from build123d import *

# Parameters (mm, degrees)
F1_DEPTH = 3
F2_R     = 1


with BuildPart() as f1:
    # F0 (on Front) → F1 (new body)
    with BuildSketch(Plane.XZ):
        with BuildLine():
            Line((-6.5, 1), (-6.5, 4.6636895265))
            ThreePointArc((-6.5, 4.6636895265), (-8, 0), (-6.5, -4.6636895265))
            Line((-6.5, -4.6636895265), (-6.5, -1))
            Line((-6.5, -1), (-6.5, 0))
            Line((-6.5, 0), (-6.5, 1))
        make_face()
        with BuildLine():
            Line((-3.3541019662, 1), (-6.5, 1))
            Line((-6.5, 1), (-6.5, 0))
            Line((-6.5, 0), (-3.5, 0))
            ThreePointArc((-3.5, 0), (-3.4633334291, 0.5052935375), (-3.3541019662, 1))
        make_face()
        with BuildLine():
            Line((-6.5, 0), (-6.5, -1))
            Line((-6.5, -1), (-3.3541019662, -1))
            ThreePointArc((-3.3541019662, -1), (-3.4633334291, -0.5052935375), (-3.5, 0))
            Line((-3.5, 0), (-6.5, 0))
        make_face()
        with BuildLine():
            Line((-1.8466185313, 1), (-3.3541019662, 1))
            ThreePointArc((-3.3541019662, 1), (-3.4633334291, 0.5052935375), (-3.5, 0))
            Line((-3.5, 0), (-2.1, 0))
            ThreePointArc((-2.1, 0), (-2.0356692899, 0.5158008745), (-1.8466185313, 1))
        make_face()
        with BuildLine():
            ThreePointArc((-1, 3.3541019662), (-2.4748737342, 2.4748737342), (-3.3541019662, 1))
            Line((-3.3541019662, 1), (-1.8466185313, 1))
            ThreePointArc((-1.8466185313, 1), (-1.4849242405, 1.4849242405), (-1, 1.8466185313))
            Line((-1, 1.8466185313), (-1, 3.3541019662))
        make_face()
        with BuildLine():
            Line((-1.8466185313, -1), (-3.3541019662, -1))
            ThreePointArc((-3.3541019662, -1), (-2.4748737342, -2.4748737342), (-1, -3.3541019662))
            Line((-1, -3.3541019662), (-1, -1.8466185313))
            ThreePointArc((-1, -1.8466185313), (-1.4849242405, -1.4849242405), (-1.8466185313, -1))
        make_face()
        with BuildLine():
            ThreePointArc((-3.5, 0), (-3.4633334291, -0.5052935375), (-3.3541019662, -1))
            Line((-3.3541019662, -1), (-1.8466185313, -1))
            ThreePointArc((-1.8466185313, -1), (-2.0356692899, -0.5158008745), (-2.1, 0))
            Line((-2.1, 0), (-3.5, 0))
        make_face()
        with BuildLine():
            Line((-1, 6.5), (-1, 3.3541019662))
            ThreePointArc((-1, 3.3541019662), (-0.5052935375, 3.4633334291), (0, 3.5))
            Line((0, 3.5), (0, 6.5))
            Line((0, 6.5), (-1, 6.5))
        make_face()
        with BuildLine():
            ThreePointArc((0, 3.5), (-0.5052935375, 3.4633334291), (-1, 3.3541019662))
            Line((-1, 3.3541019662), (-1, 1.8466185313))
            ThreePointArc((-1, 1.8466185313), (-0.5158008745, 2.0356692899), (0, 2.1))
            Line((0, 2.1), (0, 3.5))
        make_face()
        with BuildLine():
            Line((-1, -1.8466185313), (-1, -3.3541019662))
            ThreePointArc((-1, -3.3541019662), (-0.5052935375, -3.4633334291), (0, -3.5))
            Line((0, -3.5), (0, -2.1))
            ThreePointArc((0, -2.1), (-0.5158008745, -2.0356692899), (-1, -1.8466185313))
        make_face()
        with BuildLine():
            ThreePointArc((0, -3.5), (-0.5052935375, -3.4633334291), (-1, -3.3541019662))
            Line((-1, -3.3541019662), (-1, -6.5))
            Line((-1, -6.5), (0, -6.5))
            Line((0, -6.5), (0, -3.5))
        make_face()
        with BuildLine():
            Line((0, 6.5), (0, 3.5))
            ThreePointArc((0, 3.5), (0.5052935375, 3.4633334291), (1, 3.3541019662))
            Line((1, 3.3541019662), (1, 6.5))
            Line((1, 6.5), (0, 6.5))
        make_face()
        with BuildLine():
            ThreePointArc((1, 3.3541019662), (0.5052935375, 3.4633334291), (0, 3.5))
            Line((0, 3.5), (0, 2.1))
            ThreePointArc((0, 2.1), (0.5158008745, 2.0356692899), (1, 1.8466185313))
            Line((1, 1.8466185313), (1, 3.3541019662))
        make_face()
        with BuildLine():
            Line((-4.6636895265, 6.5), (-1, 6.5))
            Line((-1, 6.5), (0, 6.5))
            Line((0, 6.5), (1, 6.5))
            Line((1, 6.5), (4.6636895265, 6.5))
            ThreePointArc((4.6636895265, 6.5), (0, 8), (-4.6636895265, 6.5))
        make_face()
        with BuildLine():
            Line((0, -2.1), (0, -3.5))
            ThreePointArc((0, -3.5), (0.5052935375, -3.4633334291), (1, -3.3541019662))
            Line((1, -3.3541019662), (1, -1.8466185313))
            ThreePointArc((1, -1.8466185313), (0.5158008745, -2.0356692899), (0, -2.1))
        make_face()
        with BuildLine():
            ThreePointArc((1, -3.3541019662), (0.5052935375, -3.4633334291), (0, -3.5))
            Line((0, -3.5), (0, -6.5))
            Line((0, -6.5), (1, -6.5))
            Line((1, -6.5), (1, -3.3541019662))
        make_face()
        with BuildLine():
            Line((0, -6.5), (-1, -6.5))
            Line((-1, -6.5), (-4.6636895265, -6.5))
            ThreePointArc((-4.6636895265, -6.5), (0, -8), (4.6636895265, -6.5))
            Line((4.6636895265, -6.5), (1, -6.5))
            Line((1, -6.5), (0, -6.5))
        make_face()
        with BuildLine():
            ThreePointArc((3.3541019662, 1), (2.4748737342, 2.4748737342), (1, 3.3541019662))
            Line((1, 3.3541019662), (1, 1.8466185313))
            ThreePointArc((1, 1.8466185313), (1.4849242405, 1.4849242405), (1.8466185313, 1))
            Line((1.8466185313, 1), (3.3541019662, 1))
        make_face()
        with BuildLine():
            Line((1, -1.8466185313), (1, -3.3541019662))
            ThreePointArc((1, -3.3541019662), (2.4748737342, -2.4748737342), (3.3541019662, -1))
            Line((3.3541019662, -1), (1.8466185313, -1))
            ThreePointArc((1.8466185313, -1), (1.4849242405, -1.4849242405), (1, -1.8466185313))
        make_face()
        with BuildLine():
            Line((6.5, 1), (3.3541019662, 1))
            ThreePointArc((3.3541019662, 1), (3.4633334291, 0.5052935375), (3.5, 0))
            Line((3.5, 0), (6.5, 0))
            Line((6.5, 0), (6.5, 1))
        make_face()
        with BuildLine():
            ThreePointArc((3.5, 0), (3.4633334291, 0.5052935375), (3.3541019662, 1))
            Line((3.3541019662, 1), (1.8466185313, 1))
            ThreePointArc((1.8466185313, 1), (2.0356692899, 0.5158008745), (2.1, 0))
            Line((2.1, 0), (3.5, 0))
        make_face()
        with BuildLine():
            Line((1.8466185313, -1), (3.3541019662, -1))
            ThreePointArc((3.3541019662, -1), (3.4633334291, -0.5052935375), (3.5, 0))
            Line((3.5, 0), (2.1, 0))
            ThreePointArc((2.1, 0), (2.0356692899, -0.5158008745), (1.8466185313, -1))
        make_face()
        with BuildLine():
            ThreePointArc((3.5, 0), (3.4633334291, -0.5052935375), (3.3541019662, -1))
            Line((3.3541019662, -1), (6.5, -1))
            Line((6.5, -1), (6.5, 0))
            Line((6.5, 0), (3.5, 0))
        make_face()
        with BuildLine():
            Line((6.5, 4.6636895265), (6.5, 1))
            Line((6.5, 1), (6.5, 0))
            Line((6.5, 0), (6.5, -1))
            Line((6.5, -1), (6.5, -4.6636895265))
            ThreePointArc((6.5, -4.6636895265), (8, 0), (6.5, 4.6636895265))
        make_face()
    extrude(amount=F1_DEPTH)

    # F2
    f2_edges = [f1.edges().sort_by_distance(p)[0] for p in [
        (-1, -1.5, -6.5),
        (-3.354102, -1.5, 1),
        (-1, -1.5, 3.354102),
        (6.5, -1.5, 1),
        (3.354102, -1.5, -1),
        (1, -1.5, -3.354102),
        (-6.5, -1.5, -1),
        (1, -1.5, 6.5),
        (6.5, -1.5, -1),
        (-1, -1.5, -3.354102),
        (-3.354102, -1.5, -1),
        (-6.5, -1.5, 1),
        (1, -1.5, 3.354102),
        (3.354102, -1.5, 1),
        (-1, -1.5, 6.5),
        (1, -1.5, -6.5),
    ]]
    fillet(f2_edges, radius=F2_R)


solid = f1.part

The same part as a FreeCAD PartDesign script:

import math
import FreeCAD as App
import Part
import Sketcher
from FreeCAD import Vector


def edges_at(feature, points):
    """Names of the edges that pass closest to the given points."""
    edges = feature.Shape.Edges
    near = lambda p: min(range(len(edges)), key=lambda i: edges[i].distToShape(Part.Vertex(*p))[0])
    return sorted({f"Edge{near(p) + 1}" for p in points})

doc = App.newDocument("Part")
body = doc.addObject("PartDesign::Body", "Body")

sketch1 = doc.addObject("Sketcher::SketchObject", "Sketch")
body.addObject(sketch1)
sketch1.AttachmentSupport = (doc.XZ_Plane, [""])
sketch1.MapMode = "FlatFace"
sketch1.addGeometry([
    Part.ArcOfCircle(Part.Circle(Vector(0, 0, 0), Vector(0, 0, 1), 8), math.radians(144), math.radians(216)),
    Part.LineSegment(Vector(-6.5, -4.7, 0), Vector(-6.5, -1, 0)),
    Part.LineSegment(Vector(-6.5, -1, 0), Vector(-3.4, -1, 0)),
    Part.ArcOfCircle(Part.Circle(Vector(0, 0, 0), Vector(0, 0, 1), 3.5), math.radians(-163), math.radians(-107)),
    Part.LineSegment(Vector(-1, -3.4, 0), Vector(-1, -6.5, 0)),
    Part.LineSegment(Vector(-1, -6.5, 0), Vector(-4.7, -6.5, 0)),
    Part.ArcOfCircle(Part.Circle(Vector(0, 0, 0), Vector(0, 0, 1), 8), math.radians(-126), math.radians(-54)),
    Part.LineSegment(Vector(4.7, -6.5, 0), Vector(1, -6.5, 0)),
    Part.LineSegment(Vector(1, -6.5, 0), Vector(1, -3.4, 0)),
    Part.ArcOfCircle(Part.Circle(Vector(0, 0, 0), Vector(0, 0, 1), 3.5), math.radians(-73), math.radians(-17)),
    Part.LineSegment(Vector(3.4, -1, 0), Vector(6.5, -1, 0)),
    Part.LineSegment(Vector(6.5, -1, 0), Vector(6.5, -4.7, 0)),
    Part.ArcOfCircle(Part.Circle(Vector(0, 0, 0), Vector(0, 0, 1), 8), math.radians(-36), math.radians(36)),
    Part.LineSegment(Vector(6.5, 4.7, 0), Vector(6.5, 1, 0)),
    Part.LineSegment(Vector(6.5, 1, 0), Vector(3.4, 1, 0)),
    Part.ArcOfCircle(Part.Circle(Vector(0, 0, 0), Vector(0, 0, 1), 3.5), math.radians(17), math.radians(73)),
    Part.LineSegment(Vector(1, 3.4, 0), Vector(1, 6.5, 0)),
    Part.LineSegment(Vector(1, 6.5, 0), Vector(4.7, 6.5, 0)),
    Part.ArcOfCircle(Part.Circle(Vector(0, 0, 0), Vector(0, 0, 1), 8), math.radians(54), math.radians(126)),
    Part.LineSegment(Vector(-4.7, 6.5, 0), Vector(-1, 6.5, 0)),
    Part.LineSegment(Vector(-1, 6.5, 0), Vector(-1, 3.4, 0)),
    Part.ArcOfCircle(Part.Circle(Vector(0, 0, 0), Vector(0, 0, 1), 3.5), math.radians(107), math.radians(163)),
    Part.LineSegment(Vector(-3.4, 1, 0), Vector(-6.5, 1, 0)),
    Part.LineSegment(Vector(-6.5, 1, 0), Vector(-6.5, 4.7, 0)),
    Part.ArcOfCircle(Part.Circle(Vector(0, 0, 0), Vector(0, 0, 1), 2.1), math.radians(-62), math.radians(-28)),
    Part.ArcOfCircle(Part.Circle(Vector(0, 0, 0), Vector(0, 0, 1), 2.1), math.radians(-90), math.radians(-62)),
    Part.ArcOfCircle(Part.Circle(Vector(0, 0, 0), Vector(0, 0, 1), 2.1), math.radians(-118), math.radians(-90)),
    Part.ArcOfCircle(Part.Circle(Vector(0, 0, 0), Vector(0, 0, 1), 2.1), math.radians(-152), math.radians(-118)),
    Part.ArcOfCircle(Part.Circle(Vector(0, 0, 0), Vector(0, 0, 1), 2.1), math.radians(180), math.radians(208)),
    Part.ArcOfCircle(Part.Circle(Vector(0, 0, 0), Vector(0, 0, 1), 2.1), math.radians(152), math.radians(180)),
    Part.ArcOfCircle(Part.Circle(Vector(0, 0, 0), Vector(0, 0, 1), 2.1), math.radians(118), math.radians(152)),
    Part.ArcOfCircle(Part.Circle(Vector(0, 0, 0), Vector(0, 0, 1), 2.1), math.radians(90), math.radians(118)),
    Part.ArcOfCircle(Part.Circle(Vector(0, 0, 0), Vector(0, 0, 1), 2.1), math.radians(62), math.radians(90)),
    Part.ArcOfCircle(Part.Circle(Vector(0, 0, 0), Vector(0, 0, 1), 2.1), math.radians(28), math.radians(62)),
    Part.ArcOfCircle(Part.Circle(Vector(0, 0, 0), Vector(0, 0, 1), 2.1), math.radians(0), math.radians(28)),
    Part.ArcOfCircle(Part.Circle(Vector(0, 0, 0), Vector(0, 0, 1), 2.1), math.radians(-28), math.radians(0)),
], False)
sketch1.addConstraint([
    Sketcher.Constraint("Coincident", 0, 2, 1, 1),
    Sketcher.Constraint("Coincident", 1, 2, 2, 1),
    Sketcher.Constraint("Coincident", 2, 2, 3, 1),
    Sketcher.Constraint("Coincident", 3, 2, 4, 1),
    Sketcher.Constraint("Coincident", 4, 2, 5, 1),
    Sketcher.Constraint("Coincident", 5, 2, 6, 1),
    Sketcher.Constraint("Coincident", 6, 2, 7, 1),
    Sketcher.Constraint("Coincident", 7, 2, 8, 1),
    Sketcher.Constraint("Coincident", 8, 2, 9, 1),
    Sketcher.Constraint("Coincident", 9, 2, 10, 1),
    Sketcher.Constraint("Coincident", 10, 2, 11, 1),
    Sketcher.Constraint("Coincident", 11, 2, 12, 1),
    Sketcher.Constraint("Coincident", 12, 2, 13, 1),
    Sketcher.Constraint("Coincident", 13, 2, 14, 1),
    Sketcher.Constraint("Coincident", 14, 2, 15, 1),
    Sketcher.Constraint("Coincident", 15, 2, 16, 1),
    Sketcher.Constraint("Coincident", 16, 2, 17, 1),
    Sketcher.Constraint("Coincident", 17, 2, 18, 1),
    Sketcher.Constraint("Coincident", 18, 2, 19, 1),
    Sketcher.Constraint("Coincident", 19, 2, 20, 1),
    Sketcher.Constraint("Coincident", 20, 2, 21, 1),
    Sketcher.Constraint("Coincident", 21, 2, 22, 1),
    Sketcher.Constraint("Coincident", 22, 2, 23, 1),
    Sketcher.Constraint("Coincident", 23, 2, 0, 1),
    Sketcher.Constraint("Tangent", 24, 1, 25, 2),
    Sketcher.Constraint("Tangent", 25, 1, 26, 2),
    Sketcher.Constraint("Tangent", 26, 1, 27, 2),
    Sketcher.Constraint("Tangent", 27, 1, 28, 2),
    Sketcher.Constraint("Tangent", 28, 1, 29, 2),
    Sketcher.Constraint("Tangent", 29, 1, 30, 2),
    Sketcher.Constraint("Tangent", 30, 1, 31, 2),
    Sketcher.Constraint("Tangent", 31, 1, 32, 2),
    Sketcher.Constraint("Tangent", 32, 1, 33, 2),
    Sketcher.Constraint("Tangent", 33, 1, 34, 2),
    Sketcher.Constraint("Tangent", 34, 1, 35, 2),
    Sketcher.Constraint("Tangent", 35, 1, 24, 2),
    Sketcher.Constraint("Vertical", 1),
    Sketcher.Constraint("Horizontal", 2),
    Sketcher.Constraint("Vertical", 4),
    Sketcher.Constraint("Horizontal", 5),
    Sketcher.Constraint("Horizontal", 7),
    Sketcher.Constraint("Vertical", 8),
    Sketcher.Constraint("Horizontal", 10),
    Sketcher.Constraint("Vertical", 11),
    Sketcher.Constraint("Vertical", 13),
    Sketcher.Constraint("Horizontal", 14),
    Sketcher.Constraint("Vertical", 16),
    Sketcher.Constraint("Horizontal", 17),
    Sketcher.Constraint("Horizontal", 19),
    Sketcher.Constraint("Vertical", 20),
    Sketcher.Constraint("Horizontal", 22),
    Sketcher.Constraint("Vertical", 23),
    Sketcher.Constraint("Coincident", 0, 3, -1, 1),
    Sketcher.Constraint("Coincident", 3, 3, -1, 1),
    Sketcher.Constraint("Coincident", 6, 3, -1, 1),
    Sketcher.Constraint("Coincident", 9, 3, -1, 1),
    Sketcher.Constraint("Coincident", 12, 3, -1, 1),
    Sketcher.Constraint("Coincident", 15, 3, -1, 1),
    Sketcher.Constraint("Coincident", 18, 3, -1, 1),
    Sketcher.Constraint("Coincident", 21, 3, -1, 1),
    Sketcher.Constraint("Coincident", 24, 3, -1, 1),
    Sketcher.Constraint("Coincident", 26, 3, -1, 1),
    Sketcher.Constraint("Coincident", 28, 3, -1, 1),
    Sketcher.Constraint("Coincident", 30, 3, -1, 1),
    Sketcher.Constraint("Coincident", 32, 3, -1, 1),
    Sketcher.Constraint("Equal", 0, 6),
    Sketcher.Constraint("Equal", 3, 9),
    Sketcher.Constraint("Equal", 6, 12),
    Sketcher.Constraint("Equal", 9, 15),
    Sketcher.Constraint("Equal", 12, 18),
    Sketcher.Constraint("Equal", 15, 21),
    Sketcher.Constraint("Equal", 32, 33),
    Sketcher.Constraint("Symmetric", 1, 2, 13, 2, -1, 1),
    Sketcher.Constraint("Symmetric", 4, 2, 16, 2, -1, 1),
    Sketcher.Constraint("Symmetric", 7, 2, 19, 2, -1, 1),
    Sketcher.Constraint("Symmetric", 10, 2, 22, 2, -1, 1),
    Sketcher.Constraint("Symmetric", 4, 2, 7, 2, -2),
    Sketcher.Constraint("Symmetric", 1, 2, 10, 2, -2),
    Sketcher.Constraint("PointOnObject", 25, 1, -2),
    Sketcher.Constraint("PointOnObject", 28, 1, -1),
    Sketcher.Constraint("PointOnObject", 31, 1, -2),
    Sketcher.Constraint("PointOnObject", 34, 1, -1),
    Sketcher.Constraint("Horizontal", 24, 1, 26, 1),
    Sketcher.Constraint("Horizontal", 10, 2, 27, 1),
    Sketcher.Constraint("Horizontal", 22, 2, 29, 1),
    Sketcher.Constraint("Horizontal", 30, 1, 32, 1),
    Sketcher.Constraint("Horizontal", 29, 1, 33, 1),
    Sketcher.Constraint("Horizontal", 27, 1, 35, 1),
    Sketcher.Constraint("Vertical", 16, 2, 24, 1),
    Sketcher.Constraint("Vertical", 26, 1, 30, 1),
    Sketcher.Constraint("Equal", 19, 1),
    Sketcher.Constraint("Equal", 22, 4),
    Sketcher.Constraint("Radius", 0, 8.0),
    Sketcher.Constraint("Radius", 3, 3.5),
    Sketcher.Constraint("Radius", 24, 2.1),
    Sketcher.Constraint("DistanceY", 1, 2, -1, 1, 1.0),
    Sketcher.Constraint("DistanceX", 0, 2, -1, 1, 6.5),
])
pad1 = doc.addObject("PartDesign::Pad", "Pad")
body.addObject(pad1)
pad1.Profile = sketch1
pad1.Length = 3
doc.recompute()

fillet = doc.addObject("PartDesign::Fillet", "Fillet")
body.addObject(fillet)
fillet.Base = (pad1, edges_at(pad1, [
    (-1, -1.5, -6.5),
    (-3.354, -1.5, 1),
    (-1, -1.5, 3.354),
    (6.5, -1.5, 1),
    (3.354, -1.5, -1),
    (1, -1.5, -3.354),
    (-6.5, -1.5, -1),
    (1, -1.5, 6.5),
    (6.5, -1.5, -1),
    (-1, -1.5, -3.354),
    (-3.354, -1.5, -1),
    (-6.5, -1.5, 1),
    (1, -1.5, 3.354),
    (3.354, -1.5, 1),
    (-1, -1.5, 6.5),
    (1, -1.5, -6.5),
]))
fillet.Radius = 1

doc.recompute()
